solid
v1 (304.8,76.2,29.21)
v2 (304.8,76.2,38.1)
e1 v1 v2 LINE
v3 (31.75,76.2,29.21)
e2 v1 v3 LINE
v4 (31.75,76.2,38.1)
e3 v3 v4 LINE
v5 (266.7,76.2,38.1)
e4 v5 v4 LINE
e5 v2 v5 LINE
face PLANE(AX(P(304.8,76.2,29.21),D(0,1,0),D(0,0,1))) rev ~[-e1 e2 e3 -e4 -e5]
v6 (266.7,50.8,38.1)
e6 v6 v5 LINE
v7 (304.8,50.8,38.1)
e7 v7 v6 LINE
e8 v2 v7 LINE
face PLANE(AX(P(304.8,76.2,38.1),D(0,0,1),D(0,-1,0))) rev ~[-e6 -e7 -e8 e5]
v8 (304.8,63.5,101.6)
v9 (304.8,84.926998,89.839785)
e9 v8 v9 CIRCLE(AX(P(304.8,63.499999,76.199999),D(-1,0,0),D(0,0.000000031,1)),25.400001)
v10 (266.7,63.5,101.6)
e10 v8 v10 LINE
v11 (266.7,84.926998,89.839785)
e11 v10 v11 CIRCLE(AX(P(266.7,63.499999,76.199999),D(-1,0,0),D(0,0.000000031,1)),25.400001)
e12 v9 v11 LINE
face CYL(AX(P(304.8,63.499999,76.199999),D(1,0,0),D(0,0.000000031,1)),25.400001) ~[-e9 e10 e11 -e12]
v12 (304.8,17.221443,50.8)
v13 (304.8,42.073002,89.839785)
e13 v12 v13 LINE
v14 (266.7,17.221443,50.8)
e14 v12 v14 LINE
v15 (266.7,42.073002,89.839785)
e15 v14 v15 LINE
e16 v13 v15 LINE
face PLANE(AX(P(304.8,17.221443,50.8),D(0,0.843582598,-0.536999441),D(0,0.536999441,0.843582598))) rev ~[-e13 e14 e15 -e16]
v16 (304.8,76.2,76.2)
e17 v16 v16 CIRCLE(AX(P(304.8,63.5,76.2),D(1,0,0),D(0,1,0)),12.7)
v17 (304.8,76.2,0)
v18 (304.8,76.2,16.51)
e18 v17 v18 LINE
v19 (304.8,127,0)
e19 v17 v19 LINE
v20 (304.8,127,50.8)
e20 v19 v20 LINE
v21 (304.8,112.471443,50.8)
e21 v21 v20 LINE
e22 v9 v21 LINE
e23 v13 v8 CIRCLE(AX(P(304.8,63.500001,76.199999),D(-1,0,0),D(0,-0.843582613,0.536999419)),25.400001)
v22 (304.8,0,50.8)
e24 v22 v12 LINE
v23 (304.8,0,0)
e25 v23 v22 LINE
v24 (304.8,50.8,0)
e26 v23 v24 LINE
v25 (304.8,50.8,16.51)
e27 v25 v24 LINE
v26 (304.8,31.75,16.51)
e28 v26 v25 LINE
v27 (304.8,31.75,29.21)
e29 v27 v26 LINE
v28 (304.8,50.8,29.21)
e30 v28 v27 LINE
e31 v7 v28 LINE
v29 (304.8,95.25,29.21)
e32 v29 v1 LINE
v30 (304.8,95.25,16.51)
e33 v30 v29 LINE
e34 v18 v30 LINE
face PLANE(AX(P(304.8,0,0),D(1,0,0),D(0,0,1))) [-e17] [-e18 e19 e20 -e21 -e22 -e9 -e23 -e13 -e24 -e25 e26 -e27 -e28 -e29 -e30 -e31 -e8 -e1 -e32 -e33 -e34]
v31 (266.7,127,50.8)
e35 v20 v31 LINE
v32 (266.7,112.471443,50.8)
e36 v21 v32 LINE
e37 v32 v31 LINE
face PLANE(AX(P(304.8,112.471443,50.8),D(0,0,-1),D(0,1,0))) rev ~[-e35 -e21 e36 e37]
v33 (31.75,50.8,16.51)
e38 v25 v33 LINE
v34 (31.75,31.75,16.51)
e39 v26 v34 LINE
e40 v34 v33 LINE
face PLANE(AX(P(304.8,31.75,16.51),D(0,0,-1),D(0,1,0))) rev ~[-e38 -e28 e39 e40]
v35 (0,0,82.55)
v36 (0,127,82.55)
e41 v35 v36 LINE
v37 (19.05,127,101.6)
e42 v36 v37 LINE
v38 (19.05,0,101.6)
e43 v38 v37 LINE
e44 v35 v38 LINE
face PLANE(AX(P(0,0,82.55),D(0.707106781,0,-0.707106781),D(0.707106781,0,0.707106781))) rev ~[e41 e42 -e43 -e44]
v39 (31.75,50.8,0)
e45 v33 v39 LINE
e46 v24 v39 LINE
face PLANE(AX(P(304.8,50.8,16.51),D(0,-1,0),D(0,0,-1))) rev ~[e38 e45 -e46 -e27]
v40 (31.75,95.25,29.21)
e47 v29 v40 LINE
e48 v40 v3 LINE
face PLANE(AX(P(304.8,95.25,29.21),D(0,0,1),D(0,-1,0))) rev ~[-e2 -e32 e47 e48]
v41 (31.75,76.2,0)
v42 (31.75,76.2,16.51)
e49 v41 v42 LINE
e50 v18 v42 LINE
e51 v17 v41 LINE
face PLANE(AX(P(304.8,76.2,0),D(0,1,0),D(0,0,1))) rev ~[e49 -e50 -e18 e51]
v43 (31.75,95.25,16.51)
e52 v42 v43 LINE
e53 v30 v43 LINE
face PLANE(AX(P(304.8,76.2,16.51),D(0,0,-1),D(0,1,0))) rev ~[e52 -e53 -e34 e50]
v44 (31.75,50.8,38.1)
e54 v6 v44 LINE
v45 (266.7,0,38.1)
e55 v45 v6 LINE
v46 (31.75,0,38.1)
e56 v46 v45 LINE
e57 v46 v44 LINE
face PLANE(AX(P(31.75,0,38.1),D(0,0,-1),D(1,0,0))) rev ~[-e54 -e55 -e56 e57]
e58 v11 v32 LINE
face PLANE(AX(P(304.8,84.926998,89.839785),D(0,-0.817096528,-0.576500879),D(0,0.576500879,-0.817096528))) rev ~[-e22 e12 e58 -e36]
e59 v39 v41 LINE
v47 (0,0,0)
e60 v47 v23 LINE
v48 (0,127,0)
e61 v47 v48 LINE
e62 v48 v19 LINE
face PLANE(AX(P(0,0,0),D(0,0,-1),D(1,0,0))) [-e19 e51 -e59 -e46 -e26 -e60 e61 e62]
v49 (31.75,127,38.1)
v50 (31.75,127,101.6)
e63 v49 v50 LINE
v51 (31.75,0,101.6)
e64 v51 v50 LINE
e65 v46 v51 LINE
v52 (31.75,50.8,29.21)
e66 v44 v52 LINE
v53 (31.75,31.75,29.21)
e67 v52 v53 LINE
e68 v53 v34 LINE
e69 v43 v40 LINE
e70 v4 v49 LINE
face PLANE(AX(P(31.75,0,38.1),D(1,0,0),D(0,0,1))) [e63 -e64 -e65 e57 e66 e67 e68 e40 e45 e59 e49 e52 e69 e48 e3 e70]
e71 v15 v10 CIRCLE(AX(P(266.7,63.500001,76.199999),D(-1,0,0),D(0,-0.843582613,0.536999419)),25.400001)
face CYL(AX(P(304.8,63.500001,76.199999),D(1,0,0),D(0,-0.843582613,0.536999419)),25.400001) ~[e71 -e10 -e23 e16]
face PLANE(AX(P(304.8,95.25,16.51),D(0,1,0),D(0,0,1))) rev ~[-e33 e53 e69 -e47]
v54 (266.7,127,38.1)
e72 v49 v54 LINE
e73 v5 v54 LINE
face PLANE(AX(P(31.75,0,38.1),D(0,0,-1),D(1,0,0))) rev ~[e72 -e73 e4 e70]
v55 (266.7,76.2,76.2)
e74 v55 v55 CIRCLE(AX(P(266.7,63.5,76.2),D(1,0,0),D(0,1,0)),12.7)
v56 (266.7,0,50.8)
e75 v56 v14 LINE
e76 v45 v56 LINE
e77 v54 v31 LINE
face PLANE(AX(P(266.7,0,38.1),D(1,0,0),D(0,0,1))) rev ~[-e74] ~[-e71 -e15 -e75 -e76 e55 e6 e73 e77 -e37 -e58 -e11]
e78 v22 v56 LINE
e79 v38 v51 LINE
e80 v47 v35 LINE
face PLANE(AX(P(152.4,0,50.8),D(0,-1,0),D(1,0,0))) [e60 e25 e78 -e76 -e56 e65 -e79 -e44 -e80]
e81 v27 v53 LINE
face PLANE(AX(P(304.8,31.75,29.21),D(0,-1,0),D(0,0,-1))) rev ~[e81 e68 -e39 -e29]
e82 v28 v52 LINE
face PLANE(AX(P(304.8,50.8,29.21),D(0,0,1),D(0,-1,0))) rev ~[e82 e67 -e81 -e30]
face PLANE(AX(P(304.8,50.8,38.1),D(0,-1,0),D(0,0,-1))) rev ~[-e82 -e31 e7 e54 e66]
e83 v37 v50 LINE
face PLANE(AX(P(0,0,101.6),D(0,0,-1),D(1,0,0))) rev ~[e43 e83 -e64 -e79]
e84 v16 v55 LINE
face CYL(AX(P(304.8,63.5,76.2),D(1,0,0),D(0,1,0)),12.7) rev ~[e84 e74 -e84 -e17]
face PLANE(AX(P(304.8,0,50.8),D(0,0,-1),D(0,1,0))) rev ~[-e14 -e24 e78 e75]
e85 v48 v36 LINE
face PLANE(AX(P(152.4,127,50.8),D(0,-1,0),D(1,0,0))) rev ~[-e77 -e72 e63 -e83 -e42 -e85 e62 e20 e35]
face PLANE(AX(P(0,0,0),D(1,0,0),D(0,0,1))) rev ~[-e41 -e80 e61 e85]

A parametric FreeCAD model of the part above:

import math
import FreeCAD as App
import Part
import Sketcher
from FreeCAD import Vector
Q = App.Units.Quantity


def add_polygon(sketch, points):
    """Adds a closed chain of lines whose ends are joined by coincident constraints."""
    first, n = sketch.GeometryCount, len(points)
    for a, b in zip(points, points[1:] + points[:1]):
        sketch.addGeometry(Part.LineSegment(App.Vector(*a, 0), App.Vector(*b, 0)), False)
    for i in range(n):
        sketch.addConstraint(Sketcher.Constraint("Coincident", first + i, 2, first + (i + 1) % n, 1))

doc = App.newDocument("Part")
body = doc.addObject("PartDesign::Body", "Body")

# Sketch on XZ plane
sketch1 = doc.addObject("Sketcher::SketchObject", "Sketch")
body.addObject(sketch1)
sketch1.AttachmentSupport = (doc.XZ_Plane, [""])
sketch1.MapMode = "FlatFace"
add_polygon(sketch1, [(0, 101.6), (0, 0), (304.8, 0), (304.8, 101.6)])  # lines 0-3
sketch1.addConstraint(Sketcher.Constraint("Vertical", 0))
sketch1.addConstraint(Sketcher.Constraint("Horizontal", 1))
sketch1.addConstraint(Sketcher.Constraint("Vertical", 2))
sketch1.addConstraint(Sketcher.Constraint("Horizontal", 3))
sketch1.addConstraint(Sketcher.Constraint("Coincident", 0, 2, -1, 1))
sketch1.addConstraint(Sketcher.Constraint("DistanceX", 1, 1, 1, 2, Q("12 in")))
sketch1.addConstraint(Sketcher.Constraint("DistanceY", 0, 2, 0, 1, Q("4 in")))
pad1 = doc.addObject("PartDesign::Pad", "Pad")
body.addObject(pad1)
pad1.Profile = sketch1
pad1.Length = Q("5 in")
pad1.Reversed = True

# Sketch on XZ plane
sketch2 = doc.addObject("Sketcher::SketchObject", "Sketch001")
body.addObject(sketch2)
sketch2.AttachmentSupport = (doc.XZ_Plane, [""])
sketch2.MapMode = "FlatFace"
add_polygon(sketch2, [(31.75, 101.6), (31.75, 38.1), (266.7, 38.1), (266.7, 101.6)])  # lines 0-3
sketch2.addConstraint(Sketcher.Constraint("Vertical", 0))
sketch2.addConstraint(Sketcher.Constraint("Horizontal", 1))
sketch2.addConstraint(Sketcher.Constraint("Vertical", 2))
sketch2.addConstraint(Sketcher.Constraint("Horizontal", 3))
sketch2.addConstraint(Sketcher.Constraint("DistanceY", 0, 2, 0, 1, Q("2.5 in")))
sketch2.addConstraint(Sketcher.Constraint("DistanceY", -1, 1, 2, 2, Q("4 in")))
sketch2.addConstraint(Sketcher.Constraint("DistanceX", 1, 1, 1, 2, Q("9.25 in")))
sketch2.addConstraint(Sketcher.Constraint("DistanceX", -1, 1, 1, 2, Q("10.5 in")))
pocket1 = doc.addObject("PartDesign::Pocket", "Pocket")
body.addObject(pocket1)
pocket1.Profile = sketch2
pocket1.Type = "ThroughAll"

# Sketch on XZ plane
sketch3 = doc.addObject("Sketcher::SketchObject", "Sketch002")
body.addObject(sketch3)
sketch3.AttachmentSupport = (doc.XZ_Plane, [""])
sketch3.MapMode = "FlatFace"
add_polygon(sketch3, [(19.05, 101.6), (0, 101.6), (0, 82.55)])  # lines 0-2
sketch3.addConstraint(Sketcher.Constraint("Horizontal", 0))
sketch3.addConstraint(Sketcher.Constraint("Vertical", 1))
sketch3.addConstraint(Sketcher.Constraint("PointOnObject", 0, 2, -2))
sketch3.addConstraint(Sketcher.Constraint("Equal", 0, 1))
sketch3.addConstraint(Sketcher.Constraint("DistanceY", -1, 1, 0, 2, Q("4 in")))
sketch3.addConstraint(Sketcher.Constraint("DistanceX", 0, 2, 0, 1, Q("0.75 in")))
pocket2 = doc.addObject("PartDesign::Pocket", "Pocket001")
body.addObject(pocket2)
pocket2.Profile = sketch3
pocket2.Type = "ThroughAll"

# Sketch on YZ plane
sketch4 = doc.addObject("Sketcher::SketchObject", "Sketch003")
body.addObject(sketch4)
sketch4.AttachmentSupport = (doc.YZ_Plane, [""])
sketch4.MapMode = "FlatFace"
sketch4.AttachmentOffset = App.Placement(Vector(0, 0, 12 * 25.4), App.Rotation())
sketch4.addGeometry(Part.LineSegment(Vector(0, 101.6, 0), Vector(0, 50.8, 0)), False)
sketch4.addGeometry(Part.LineSegment(Vector(0, 50.8, 0), Vector(17.221443, 50.8, 0)), False)
sketch4.addGeometry(Part.LineSegment(Vector(17.221443, 50.8, 0), Vector(42.073002, 89.839785, 0)), False)
sketch4.addGeometry(Part.ArcOfCircle(Part.Circle(Vector(63.500001, 76.199999, 0), Vector(0, 0, 1), 25.400001), math.radians(90.000002), math.radians(147.520391)), False)
sketch4.addGeometry(Part.LineSegment(Vector(63.5, 101.6, 0), Vector(0, 101.6, 0)), False)
sketch4.addGeometry(Part.LineSegment(Vector(127, 101.6, 0), Vector(63.5, 101.6, 0)), False)
sketch4.addGeometry(Part.ArcOfCircle(Part.Circle(Vector(63.499999, 76.199999, 0), Vector(0, 0, 1), 25.400001), math.radians(32.479609), math.radians(89.999998)), False)
sketch4.addGeometry(Part.LineSegment(Vector(84.926998, 89.839785, 0), Vector(112.471443, 50.8, 0)), False)
sketch4.addGeometry(Part.LineSegment(Vector(112.471443, 50.8, 0), Vector(127, 50.8, 0)), False)
sketch4.addGeometry(Part.LineSegment(Vector(127, 50.8, 0), Vector(127, 101.6, 0)), False)
sketch4.addGeometry(Part.Circle(Vector(63.5, 76.2, 0), Vector(0, 0, 1), 12.7), False)
sketch4.addConstraint(Sketcher.Constraint("Coincident", 0, 2, 1, 1))
sketch4.addConstraint(Sketcher.Constraint("Coincident", 1, 2, 2, 1))
sketch4.addConstraint(Sketcher.Constraint("Tangent", 2, 2, 3, 2))
sketch4.addConstraint(Sketcher.Constraint("Tangent", 3, 1, 4, 1))
sketch4.addConstraint(Sketcher.Constraint("Coincident", 4, 2, 0, 1))
sketch4.addConstraint(Sketcher.Constraint("Tangent", 5, 2, 6, 2))
sketch4.addConstraint(Sketcher.Constraint("Coincident", 6, 1, 7, 1))
sketch4.addConstraint(Sketcher.Constraint("Coincident", 7, 2, 8, 1))
sketch4.addConstraint(Sketcher.Constraint("Coincident", 8, 2, 9, 1))
sketch4.addConstraint(Sketcher.Constraint("Coincident", 9, 2, 5, 1))
sketch4.addConstraint(Sketcher.Constraint("Vertical", 0))
sketch4.addConstraint(Sketcher.Constraint("Horizontal", 1))
sketch4.addConstraint(Sketcher.Constraint("Horizontal", 4))
sketch4.addConstraint(Sketcher.Constraint("Horizontal", 5))
sketch4.addConstraint(Sketcher.Constraint("Horizontal", 8))
sketch4.addConstraint(Sketcher.Constraint("Vertical", 9))
sketch4.addConstraint(Sketcher.Constraint("Coincident", 6, 3, 3, 3))
sketch4.addConstraint(Sketcher.Constraint("Coincident", 10, 3, 3, 3))
sketch4.addConstraint(Sketcher.Constraint("Equal", 3, 6))
sketch4.addConstraint(Sketcher.Constraint("PointOnObject", 0, 2, -2))
sketch4.addConstraint(Sketcher.Constraint("Horizontal", 2, 2, 6, 1))
sketch4.addConstraint(Sketcher.Constraint("Horizontal", 1, 2, 7, 2))
sketch4.addConstraint(Sketcher.Constraint("Equal", 4, 5))
sketch4.addConstraint(Sketcher.Constraint("Diameter", 10, Q("1 in")))
sketch4.addConstraint(Sketcher.Constraint("Radius", 3, Q("1 in")))
sketch4.addConstraint(Sketcher.Constraint("DistanceY", 0, 2, 0, 1, Q("2 in")))
sketch4.addConstraint(Sketcher.Constraint("DistanceX", 4, 2, 4, 1, Q("2.5 in")))
sketch4.addConstraint(Sketcher.Constraint("DistanceY", -1, 1, 3, 3, Q("3 in")))
sketch4.addConstraint(Sketcher.Constraint("DistanceX", 2, 2, 3, 3, 21.426999))
sketch4.addConstraint(Sketcher.Constraint("Distance", 7, 47.77867))
pocket3 = doc.addObject("PartDesign::Pocket", "Pocket002")
body.addObject(pocket3)
pocket3.Profile = sketch4
pocket3.Length = Q("1.5 in")

# Sketch on YZ plane
sketch5 = doc.addObject("Sketcher::SketchObject", "Sketch004")
body.addObject(sketch5)
sketch5.AttachmentSupport = (doc.YZ_Plane, [""])
sketch5.MapMode = "FlatFace"
sketch5.AttachmentOffset = App.Placement(Vector(0, 0, 12 * 25.4), App.Rotation())
add_polygon(sketch5, [(50.8, 16.51), (50.8, 0), (76.2, 0), (76.2, 16.51), (95.25, 16.51), (95.25, 29.21), (76.2, 29.21), (76.2, 38.1), (50.8, 38.1), (50.8, 29.21), (31.75, 29.21), (31.75, 16.51)])  # lines 0-11
sketch5.addConstraint(Sketcher.Constraint("Vertical", 0))
sketch5.addConstraint(Sketcher.Constraint("Horizontal", 1))
sketch5.addConstraint(Sketcher.Constraint("Vertical", 2))
sketch5.addConstraint(Sketcher.Constraint("Horizontal", 3))
sketch5.addConstraint(Sketcher.Constraint("Vertical", 4))
sketch5.addConstraint(Sketcher.Constraint("Horizontal", 5))
sketch5.addConstraint(Sketcher.Constraint("Vertical", 6))
sketch5.addConstraint(Sketcher.Constraint("Horizontal", 7))
sketch5.addConstraint(Sketcher.Constraint("Vertical", 8))
sketch5.addConstraint(Sketcher.Constraint("Horizontal", 9))
sketch5.addConstraint(Sketcher.Constraint("Vertical", 10))
sketch5.addConstraint(Sketcher.Constraint("Horizontal", 11))
sketch5.addConstraint(Sketcher.Constraint("PointOnObject", 0, 2, -1))
sketch5.addConstraint(Sketcher.Constraint("Horizontal", 5, 2, 8, 2))
sketch5.addConstraint(Sketcher.Constraint("Horizontal", 3, 2, 10, 2))
sketch5.addConstraint(Sketcher.Constraint("Vertical", 2, 2, 5, 2))
sketch5.addConstraint(Sketcher.Constraint("Vertical", 0, 2, 7, 2))
sketch5.addConstraint(Sketcher.Constraint("Equal", 5, 9))
sketch5.addConstraint(Sketcher.Constraint("DistanceX", 1, 1, 1, 2, Q("1 in")))
sketch5.addConstraint(Sketcher.Constraint("DistanceY", 4, 1, 4, 2, Q("0.5 in")))
sketch5.addConstraint(Sketcher.Constraint("DistanceX", -1, 1, 0, 2, Q("2 in")))
sketch5.addConstraint(Sketcher.Constraint("DistanceX", 3, 1, 3, 2, Q("0.75 in")))
sketch5.addConstraint(Sketcher.Constraint("DistanceY", 0, 2, 0, 1, Q("0.65 in")))
sketch5.addConstraint(Sketcher.Constraint("DistanceY", 6, 1, 6, 2, Q("0.35 in")))
pocket4 = doc.addObject("PartDesign::Pocket", "Pocket003")
body.addObject(pocket4)
pocket4.Profile = sketch5
pocket4.Length = Q("10.75 in")

doc.recompute()
